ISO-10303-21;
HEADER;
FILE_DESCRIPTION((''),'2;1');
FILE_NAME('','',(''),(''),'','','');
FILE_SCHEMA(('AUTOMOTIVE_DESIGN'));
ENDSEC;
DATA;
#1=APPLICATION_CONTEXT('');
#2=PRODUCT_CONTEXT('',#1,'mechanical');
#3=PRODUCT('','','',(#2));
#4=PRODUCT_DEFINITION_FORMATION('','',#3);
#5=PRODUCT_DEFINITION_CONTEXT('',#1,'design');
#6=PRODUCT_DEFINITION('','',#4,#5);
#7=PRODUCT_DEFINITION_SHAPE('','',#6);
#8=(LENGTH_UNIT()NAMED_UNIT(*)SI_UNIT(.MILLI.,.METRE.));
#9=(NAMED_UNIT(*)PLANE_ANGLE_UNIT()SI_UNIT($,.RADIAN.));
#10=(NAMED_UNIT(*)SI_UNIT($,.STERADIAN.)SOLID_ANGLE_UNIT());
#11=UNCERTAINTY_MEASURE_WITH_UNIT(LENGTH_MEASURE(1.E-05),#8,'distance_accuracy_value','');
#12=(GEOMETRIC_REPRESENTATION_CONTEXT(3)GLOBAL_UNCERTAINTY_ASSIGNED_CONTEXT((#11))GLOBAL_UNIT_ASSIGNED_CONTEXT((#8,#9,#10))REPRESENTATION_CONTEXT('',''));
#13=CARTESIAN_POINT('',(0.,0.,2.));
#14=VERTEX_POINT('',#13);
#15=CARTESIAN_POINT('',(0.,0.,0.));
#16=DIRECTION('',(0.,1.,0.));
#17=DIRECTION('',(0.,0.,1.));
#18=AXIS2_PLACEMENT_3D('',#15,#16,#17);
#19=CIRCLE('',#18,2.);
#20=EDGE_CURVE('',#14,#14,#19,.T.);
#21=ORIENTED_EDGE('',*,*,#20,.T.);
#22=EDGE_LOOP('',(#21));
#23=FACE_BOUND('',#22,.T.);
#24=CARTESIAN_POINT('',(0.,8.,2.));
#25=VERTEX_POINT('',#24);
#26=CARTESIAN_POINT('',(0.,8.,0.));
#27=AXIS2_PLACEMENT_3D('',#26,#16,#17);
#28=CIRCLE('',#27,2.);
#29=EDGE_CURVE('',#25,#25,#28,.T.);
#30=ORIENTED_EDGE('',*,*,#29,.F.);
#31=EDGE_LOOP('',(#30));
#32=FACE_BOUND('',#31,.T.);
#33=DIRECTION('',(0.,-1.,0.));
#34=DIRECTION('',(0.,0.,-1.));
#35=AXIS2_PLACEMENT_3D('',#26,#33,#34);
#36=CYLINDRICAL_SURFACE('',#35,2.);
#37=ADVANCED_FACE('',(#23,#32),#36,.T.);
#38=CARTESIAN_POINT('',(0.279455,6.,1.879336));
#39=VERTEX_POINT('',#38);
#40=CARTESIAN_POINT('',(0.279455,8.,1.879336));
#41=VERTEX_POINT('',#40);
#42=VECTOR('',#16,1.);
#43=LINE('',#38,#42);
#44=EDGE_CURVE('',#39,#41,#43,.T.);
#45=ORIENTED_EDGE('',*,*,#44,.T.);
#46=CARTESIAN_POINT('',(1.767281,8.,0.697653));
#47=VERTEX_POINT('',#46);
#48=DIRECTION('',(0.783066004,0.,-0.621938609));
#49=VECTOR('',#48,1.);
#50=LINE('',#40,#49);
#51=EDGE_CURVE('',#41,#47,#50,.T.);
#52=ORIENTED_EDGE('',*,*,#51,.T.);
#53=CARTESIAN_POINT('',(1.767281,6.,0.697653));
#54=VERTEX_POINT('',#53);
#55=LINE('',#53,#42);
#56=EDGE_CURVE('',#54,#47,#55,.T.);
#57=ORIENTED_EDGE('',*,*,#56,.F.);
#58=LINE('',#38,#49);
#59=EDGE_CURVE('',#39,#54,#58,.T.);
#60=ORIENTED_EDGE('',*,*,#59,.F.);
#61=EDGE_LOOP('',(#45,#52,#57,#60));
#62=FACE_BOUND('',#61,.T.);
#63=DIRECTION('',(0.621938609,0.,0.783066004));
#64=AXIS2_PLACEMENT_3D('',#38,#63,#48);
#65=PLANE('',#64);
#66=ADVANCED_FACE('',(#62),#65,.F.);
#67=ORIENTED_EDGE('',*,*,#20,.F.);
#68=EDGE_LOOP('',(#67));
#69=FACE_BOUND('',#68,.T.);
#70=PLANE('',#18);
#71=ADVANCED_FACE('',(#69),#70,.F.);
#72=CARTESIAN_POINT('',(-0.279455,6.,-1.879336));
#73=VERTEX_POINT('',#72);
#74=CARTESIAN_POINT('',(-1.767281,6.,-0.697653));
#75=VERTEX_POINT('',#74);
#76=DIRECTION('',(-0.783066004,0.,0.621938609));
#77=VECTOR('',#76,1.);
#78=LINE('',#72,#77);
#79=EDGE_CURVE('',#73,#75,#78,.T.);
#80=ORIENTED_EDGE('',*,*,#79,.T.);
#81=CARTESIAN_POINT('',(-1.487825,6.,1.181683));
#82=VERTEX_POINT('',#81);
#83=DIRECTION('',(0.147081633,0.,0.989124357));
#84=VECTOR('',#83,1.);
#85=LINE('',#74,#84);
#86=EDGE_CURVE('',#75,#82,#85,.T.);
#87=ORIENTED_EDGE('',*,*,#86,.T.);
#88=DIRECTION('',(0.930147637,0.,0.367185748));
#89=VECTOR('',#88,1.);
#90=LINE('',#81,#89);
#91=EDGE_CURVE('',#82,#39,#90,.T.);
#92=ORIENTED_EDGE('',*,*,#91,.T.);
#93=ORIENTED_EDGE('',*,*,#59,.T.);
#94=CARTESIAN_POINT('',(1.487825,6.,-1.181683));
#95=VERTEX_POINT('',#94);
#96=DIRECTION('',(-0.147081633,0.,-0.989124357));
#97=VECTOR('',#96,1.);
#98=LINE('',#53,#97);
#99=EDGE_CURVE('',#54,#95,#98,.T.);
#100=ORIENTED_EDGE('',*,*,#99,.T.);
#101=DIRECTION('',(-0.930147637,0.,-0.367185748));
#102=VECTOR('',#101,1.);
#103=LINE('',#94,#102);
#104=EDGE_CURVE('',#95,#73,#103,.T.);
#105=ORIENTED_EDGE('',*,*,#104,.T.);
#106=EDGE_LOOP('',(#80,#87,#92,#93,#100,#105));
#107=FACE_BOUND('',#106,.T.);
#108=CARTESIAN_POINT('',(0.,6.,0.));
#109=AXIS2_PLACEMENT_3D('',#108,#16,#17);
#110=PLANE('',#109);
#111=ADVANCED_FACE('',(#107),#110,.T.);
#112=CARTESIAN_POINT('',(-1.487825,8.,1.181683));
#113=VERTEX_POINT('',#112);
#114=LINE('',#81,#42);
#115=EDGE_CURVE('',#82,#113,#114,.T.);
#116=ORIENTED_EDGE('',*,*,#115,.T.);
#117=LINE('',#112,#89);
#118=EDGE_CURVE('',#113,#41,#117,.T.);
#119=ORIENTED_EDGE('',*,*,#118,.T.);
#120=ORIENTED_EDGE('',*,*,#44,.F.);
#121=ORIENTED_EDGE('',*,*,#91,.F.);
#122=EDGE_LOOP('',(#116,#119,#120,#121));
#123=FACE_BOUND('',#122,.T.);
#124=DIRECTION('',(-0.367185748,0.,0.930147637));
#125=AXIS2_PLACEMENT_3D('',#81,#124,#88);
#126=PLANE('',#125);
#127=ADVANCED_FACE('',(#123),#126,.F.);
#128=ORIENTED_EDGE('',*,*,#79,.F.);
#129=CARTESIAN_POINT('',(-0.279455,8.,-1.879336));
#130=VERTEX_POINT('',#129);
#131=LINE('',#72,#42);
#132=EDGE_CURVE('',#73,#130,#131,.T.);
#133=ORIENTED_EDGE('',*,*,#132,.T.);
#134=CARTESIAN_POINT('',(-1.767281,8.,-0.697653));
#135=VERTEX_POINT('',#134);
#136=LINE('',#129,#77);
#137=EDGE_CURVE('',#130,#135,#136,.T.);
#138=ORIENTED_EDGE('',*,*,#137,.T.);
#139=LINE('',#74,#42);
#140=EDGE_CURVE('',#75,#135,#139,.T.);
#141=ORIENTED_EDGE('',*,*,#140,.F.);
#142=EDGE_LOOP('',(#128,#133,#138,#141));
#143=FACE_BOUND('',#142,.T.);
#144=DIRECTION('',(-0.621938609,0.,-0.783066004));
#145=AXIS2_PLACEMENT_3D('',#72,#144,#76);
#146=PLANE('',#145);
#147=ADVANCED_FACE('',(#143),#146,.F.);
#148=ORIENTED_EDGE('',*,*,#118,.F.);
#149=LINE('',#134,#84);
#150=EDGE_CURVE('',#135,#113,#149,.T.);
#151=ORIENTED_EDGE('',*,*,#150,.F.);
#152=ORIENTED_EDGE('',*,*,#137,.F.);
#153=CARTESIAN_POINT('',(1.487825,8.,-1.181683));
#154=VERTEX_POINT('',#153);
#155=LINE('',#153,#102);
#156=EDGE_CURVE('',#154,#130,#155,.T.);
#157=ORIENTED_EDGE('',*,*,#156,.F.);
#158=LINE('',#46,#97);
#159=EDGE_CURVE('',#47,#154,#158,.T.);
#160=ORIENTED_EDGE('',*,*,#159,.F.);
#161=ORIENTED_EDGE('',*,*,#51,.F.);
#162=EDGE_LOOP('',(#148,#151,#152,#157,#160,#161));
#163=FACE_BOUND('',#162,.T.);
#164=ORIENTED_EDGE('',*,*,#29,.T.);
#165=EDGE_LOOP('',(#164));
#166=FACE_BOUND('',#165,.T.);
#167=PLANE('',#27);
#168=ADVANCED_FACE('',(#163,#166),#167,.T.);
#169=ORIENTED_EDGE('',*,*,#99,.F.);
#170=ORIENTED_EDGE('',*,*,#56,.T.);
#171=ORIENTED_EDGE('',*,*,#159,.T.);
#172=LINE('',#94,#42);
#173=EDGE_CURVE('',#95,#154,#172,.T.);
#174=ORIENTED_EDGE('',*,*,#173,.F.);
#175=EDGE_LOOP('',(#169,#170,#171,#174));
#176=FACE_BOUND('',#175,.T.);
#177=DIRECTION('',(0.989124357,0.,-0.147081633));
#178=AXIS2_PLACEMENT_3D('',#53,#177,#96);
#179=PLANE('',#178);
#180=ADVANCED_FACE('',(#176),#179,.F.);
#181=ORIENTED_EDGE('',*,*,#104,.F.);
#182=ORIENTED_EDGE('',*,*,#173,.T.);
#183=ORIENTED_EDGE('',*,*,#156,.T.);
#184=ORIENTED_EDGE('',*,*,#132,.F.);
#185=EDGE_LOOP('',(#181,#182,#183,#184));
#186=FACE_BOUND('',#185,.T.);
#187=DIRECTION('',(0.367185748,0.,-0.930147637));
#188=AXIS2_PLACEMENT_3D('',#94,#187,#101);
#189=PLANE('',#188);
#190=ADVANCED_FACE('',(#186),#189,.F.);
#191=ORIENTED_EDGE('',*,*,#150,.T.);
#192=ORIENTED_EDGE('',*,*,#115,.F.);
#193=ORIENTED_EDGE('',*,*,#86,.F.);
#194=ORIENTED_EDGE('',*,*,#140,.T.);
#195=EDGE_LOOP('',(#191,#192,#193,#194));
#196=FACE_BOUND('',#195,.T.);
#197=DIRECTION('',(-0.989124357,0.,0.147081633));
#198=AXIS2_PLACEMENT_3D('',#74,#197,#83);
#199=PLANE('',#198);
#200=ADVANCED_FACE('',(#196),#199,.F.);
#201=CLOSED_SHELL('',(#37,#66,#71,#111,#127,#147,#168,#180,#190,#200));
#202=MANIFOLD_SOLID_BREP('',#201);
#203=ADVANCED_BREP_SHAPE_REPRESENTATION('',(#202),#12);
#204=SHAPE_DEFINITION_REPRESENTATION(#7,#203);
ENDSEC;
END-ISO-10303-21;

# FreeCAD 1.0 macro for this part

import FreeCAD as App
import Part
import Sketcher
from FreeCAD import Vector
Q = App.Units.Quantity


def add_polygon(sketch, points):
    """Adds a closed chain of lines whose ends are joined by coincident constraints."""
    first, n = sketch.GeometryCount, len(points)
    for a, b in zip(points, points[1:] + points[:1]):
        sketch.addGeometry(Part.LineSegment(App.Vector(*a, 0), App.Vector(*b, 0)), False)
    for i in range(n):
        sketch.addConstraint(Sketcher.Constraint("Coincident", first + i, 2, first + (i + 1) % n, 1))

doc = App.newDocument("Part")
body = doc.addObject("PartDesign::Body", "Body")

# Sketch on XZ plane
sketch1 = body.newObject("Sketcher::SketchObject", "Sketch")
sketch1.AttachmentSupport = (doc.getObject("XZ_Plane"), [""])
sketch1.MapMode = "FlatFace"
sketch1.addGeometry(Part.Circle(Vector(0, 0, 0), Vector(0, 0, 1), 2), False)
sketch1.addConstraint(Sketcher.Constraint("Coincident", 0, 3, -1, 1))
sketch1.addConstraint(Sketcher.Constraint("Diameter", 0, Q("4 mm")))
pad1 = body.newObject("PartDesign::Pad", "Pad")
pad1.Profile = sketch1
pad1.Length = 8
pad1.Reversed = True

# Sketch on XZ plane
sketch2 = body.newObject("Sketcher::SketchObject", "Sketch001")
sketch2.AttachmentSupport = (doc.getObject("XZ_Plane"), [""])
sketch2.MapMode = "FlatFace"
sketch2.AttachmentOffset = App.Placement(Vector(0, 0, -8), App.Rotation())
add_polygon(sketch2, [(-1.487825, 1.181683), (0.279455, 1.879336), (1.767281, 0.697653), (1.487825, -1.181683), (-0.279455, -1.879336), (-1.767281, -0.697653)])  # lines 0-5
sketch2.addConstraint(Sketcher.Constraint("Symmetric", 0, 2, 3, 2, -1, 1))
sketch2.addConstraint(Sketcher.Constraint("Symmetric", 1, 2, 4, 2, -1, 1))
sketch2.addConstraint(Sketcher.Constraint("Symmetric", 2, 2, 5, 2, -1, 1))
sketch2.addConstraint(Sketcher.Constraint("Equal", 0, 1))
sketch2.addConstraint(Sketcher.Constraint("Equal", 1, 2))
sketch2.addConstraint(Sketcher.Constraint("Distance", 0, Q("1.9 mm")))
sketch2.addConstraint(Sketcher.Constraint("DistanceX", -1, 1, 1, 2, Q("1.767281 mm")))
sketch2.addConstraint(Sketcher.Constraint("DistanceX", 0, 2, 2, 2, Q("1.20837 mm")))
sketch2.addConstraint(Sketcher.Constraint("DistanceY", 2, 2, 0, 2, Q("3.06102 mm")))
pocket1 = body.newObject("PartDesign::Pocket", "Pocket")
pocket1.Profile = sketch2
pocket1.Length = 2
pocket1.Reversed = True

doc.recompute()
